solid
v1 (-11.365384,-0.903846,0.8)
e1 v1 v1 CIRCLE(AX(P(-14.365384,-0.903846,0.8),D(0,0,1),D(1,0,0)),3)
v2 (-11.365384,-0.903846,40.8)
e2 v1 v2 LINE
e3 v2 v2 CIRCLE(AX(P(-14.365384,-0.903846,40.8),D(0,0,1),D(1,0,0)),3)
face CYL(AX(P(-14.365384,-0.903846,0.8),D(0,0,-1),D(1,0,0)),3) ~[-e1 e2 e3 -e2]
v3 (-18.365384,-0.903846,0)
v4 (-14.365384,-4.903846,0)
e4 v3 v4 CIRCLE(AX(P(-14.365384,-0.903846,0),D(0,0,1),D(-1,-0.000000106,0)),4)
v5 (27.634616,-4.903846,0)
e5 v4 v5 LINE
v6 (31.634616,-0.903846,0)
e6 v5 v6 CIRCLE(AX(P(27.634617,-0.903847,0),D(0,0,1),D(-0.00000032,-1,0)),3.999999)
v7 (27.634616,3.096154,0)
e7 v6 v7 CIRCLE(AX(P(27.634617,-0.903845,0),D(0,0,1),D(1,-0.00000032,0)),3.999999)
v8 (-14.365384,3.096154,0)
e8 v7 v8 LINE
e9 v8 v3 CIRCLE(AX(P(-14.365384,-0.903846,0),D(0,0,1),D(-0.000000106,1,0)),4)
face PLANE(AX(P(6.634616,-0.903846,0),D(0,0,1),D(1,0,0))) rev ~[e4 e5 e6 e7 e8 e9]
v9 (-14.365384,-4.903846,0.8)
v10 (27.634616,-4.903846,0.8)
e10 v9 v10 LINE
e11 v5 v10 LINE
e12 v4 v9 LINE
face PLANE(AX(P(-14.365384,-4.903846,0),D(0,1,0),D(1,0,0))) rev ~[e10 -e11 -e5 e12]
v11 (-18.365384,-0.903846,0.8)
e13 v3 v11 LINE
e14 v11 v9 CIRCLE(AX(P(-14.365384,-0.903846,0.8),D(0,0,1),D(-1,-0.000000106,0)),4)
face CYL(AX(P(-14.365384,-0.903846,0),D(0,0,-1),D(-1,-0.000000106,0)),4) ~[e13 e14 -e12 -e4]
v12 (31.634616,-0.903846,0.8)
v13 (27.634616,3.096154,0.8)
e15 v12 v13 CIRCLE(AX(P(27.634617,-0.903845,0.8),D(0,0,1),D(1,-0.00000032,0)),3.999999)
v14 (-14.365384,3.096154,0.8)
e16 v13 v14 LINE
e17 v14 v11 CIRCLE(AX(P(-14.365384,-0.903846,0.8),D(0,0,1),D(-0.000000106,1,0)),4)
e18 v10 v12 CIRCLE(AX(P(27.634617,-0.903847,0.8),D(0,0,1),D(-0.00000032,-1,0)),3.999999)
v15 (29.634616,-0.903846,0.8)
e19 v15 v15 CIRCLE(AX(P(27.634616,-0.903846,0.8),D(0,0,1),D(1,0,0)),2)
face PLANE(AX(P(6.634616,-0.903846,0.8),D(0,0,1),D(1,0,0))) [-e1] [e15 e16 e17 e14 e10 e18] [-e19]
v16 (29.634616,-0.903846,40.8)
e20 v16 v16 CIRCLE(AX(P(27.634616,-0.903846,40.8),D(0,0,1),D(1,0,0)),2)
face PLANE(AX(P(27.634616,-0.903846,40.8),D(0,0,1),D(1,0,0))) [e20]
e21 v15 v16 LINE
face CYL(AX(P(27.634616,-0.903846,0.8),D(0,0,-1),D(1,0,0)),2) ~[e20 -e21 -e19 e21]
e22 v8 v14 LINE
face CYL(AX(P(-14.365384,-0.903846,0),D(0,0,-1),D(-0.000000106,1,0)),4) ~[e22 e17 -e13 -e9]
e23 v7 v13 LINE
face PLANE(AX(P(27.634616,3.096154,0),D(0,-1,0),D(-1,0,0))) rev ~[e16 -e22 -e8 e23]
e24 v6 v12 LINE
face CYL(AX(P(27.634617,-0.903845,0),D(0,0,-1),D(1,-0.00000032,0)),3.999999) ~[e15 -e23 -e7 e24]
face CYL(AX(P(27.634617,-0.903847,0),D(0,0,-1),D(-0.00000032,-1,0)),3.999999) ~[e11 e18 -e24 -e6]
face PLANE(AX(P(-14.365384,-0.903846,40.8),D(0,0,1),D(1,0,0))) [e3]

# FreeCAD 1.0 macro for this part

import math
import FreeCAD as App
import Part
import Sketcher
Q = App.Units.Quantity

doc = App.newDocument("Part")
body = doc.addObject("PartDesign::Body", "Body")

# Sketch on XY plane
sketch1 = doc.addObject("Sketcher::SketchObject", "Sketch")
body.addObject(sketch1)
sketch1.AttachmentSupport = (doc.XY_Plane, [""])
sketch1.MapMode = "FlatFace"
sketch1.addGeometry(Part.LineSegment(App.Vector(27.6, 3.1, 0), App.Vector(-14.4, 3.1, 0)), False)
sketch1.addGeometry(Part.ArcOfCircle(Part.Circle(App.Vector(-14.4, -0.9, 0), App.Vector(0, 0, 1), 4), math.radians(90), math.radians(180)), False)
sketch1.addGeometry(Part.ArcOfCircle(Part.Circle(App.Vector(-14.4, -0.9, 0), App.Vector(0, 0, 1), 4), math.radians(-180), math.radians(-90)), False)
sketch1.addGeometry(Part.LineSegment(App.Vector(-14.4, -4.9, 0), App.Vector(27.6, -4.9, 0)), False)
sketch1.addGeometry(Part.ArcOfCircle(Part.Circle(App.Vector(27.6, -0.9, 0), App.Vector(0, 0, 1), 4), math.radians(-90), math.radians(0)), False)
sketch1.addGeometry(Part.ArcOfCircle(Part.Circle(App.Vector(27.6, -0.9, 0), App.Vector(0, 0, 1), 4), math.radians(0), math.radians(90)), False)
sketch1.addConstraint(Sketcher.Constraint("Tangent", 0, 2, 1, 1))
sketch1.addConstraint(Sketcher.Constraint("Tangent", 1, 2, 2, 1))
sketch1.addConstraint(Sketcher.Constraint("Tangent", 2, 2, 3, 1))
sketch1.addConstraint(Sketcher.Constraint("Tangent", 3, 2, 4, 1))
sketch1.addConstraint(Sketcher.Constraint("Tangent", 4, 2, 5, 1))
sketch1.addConstraint(Sketcher.Constraint("Tangent", 5, 2, 0, 1))
sketch1.addConstraint(Sketcher.Constraint("Horizontal", 0))
sketch1.addConstraint(Sketcher.Constraint("Horizontal", 3))
sketch1.addConstraint(Sketcher.Constraint("Equal", 1, 2))
sketch1.addConstraint(Sketcher.Constraint("Equal", 2, 4))
sketch1.addConstraint(Sketcher.Constraint("Horizontal", 5, 3, 1, 2))
sketch1.addConstraint(Sketcher.Constraint("Horizontal", 1, 2, 4, 2))
sketch1.addConstraint(Sketcher.Constraint("Radius", 1, Q("4 mm")))
sketch1.addConstraint(Sketcher.Constraint("DistanceX", 0, 2, 0, 1, Q("42 mm")))
sketch1.addConstraint(Sketcher.Constraint("DistanceX", 1, 3, -1, 1, Q("14.365384 mm")))
sketch1.addConstraint(Sketcher.Constraint("DistanceY", 1, 3, -1, 1, Q("0.903846 mm")))
pad1 = doc.addObject("PartDesign::Pad", "Pad")
body.addObject(pad1)
pad1.Profile = sketch1
pad1.Length = 0.8

# Sketch on XY plane
sketch2 = doc.addObject("Sketcher::SketchObject", "Sketch001")
body.addObject(sketch2)
sketch2.AttachmentSupport = (doc.XY_Plane, [""])
sketch2.MapMode = "FlatFace"
sketch2.AttachmentOffset = App.Placement(App.Vector(0, 0, 0.8), App.Rotation())
sketch2.addGeometry(Part.Circle(App.Vector(-14.4, -0.9, 0), App.Vector(0, 0, 1), 3), False)
sketch2.addGeometry(Part.Circle(App.Vector(27.6, -0.9, 0), App.Vector(0, 0, 1), 2), False)
sketch2.addConstraint(Sketcher.Constraint("Horizontal", 0, 3, 1, 3))
sketch2.addConstraint(Sketcher.Constraint("Diameter", 0, Q("6 mm")))
sketch2.addConstraint(Sketcher.Constraint("Diameter", 1, Q("4 mm")))
sketch2.addConstraint(Sketcher.Constraint("DistanceX", 0, 3, 1, 3, Q("42 mm")))
sketch2.addConstraint(Sketcher.Constraint("DistanceX", 0, 3, -1, 1, Q("14.365384 mm")))
sketch2.addConstraint(Sketcher.Constraint("DistanceY", 0, 3, -1, 1, Q("0.903846 mm")))
pad2 = doc.addObject("PartDesign::Pad", "Pad001")
body.addObject(pad2)
pad2.Profile = sketch2
pad2.Length = 40

doc.recompute()
